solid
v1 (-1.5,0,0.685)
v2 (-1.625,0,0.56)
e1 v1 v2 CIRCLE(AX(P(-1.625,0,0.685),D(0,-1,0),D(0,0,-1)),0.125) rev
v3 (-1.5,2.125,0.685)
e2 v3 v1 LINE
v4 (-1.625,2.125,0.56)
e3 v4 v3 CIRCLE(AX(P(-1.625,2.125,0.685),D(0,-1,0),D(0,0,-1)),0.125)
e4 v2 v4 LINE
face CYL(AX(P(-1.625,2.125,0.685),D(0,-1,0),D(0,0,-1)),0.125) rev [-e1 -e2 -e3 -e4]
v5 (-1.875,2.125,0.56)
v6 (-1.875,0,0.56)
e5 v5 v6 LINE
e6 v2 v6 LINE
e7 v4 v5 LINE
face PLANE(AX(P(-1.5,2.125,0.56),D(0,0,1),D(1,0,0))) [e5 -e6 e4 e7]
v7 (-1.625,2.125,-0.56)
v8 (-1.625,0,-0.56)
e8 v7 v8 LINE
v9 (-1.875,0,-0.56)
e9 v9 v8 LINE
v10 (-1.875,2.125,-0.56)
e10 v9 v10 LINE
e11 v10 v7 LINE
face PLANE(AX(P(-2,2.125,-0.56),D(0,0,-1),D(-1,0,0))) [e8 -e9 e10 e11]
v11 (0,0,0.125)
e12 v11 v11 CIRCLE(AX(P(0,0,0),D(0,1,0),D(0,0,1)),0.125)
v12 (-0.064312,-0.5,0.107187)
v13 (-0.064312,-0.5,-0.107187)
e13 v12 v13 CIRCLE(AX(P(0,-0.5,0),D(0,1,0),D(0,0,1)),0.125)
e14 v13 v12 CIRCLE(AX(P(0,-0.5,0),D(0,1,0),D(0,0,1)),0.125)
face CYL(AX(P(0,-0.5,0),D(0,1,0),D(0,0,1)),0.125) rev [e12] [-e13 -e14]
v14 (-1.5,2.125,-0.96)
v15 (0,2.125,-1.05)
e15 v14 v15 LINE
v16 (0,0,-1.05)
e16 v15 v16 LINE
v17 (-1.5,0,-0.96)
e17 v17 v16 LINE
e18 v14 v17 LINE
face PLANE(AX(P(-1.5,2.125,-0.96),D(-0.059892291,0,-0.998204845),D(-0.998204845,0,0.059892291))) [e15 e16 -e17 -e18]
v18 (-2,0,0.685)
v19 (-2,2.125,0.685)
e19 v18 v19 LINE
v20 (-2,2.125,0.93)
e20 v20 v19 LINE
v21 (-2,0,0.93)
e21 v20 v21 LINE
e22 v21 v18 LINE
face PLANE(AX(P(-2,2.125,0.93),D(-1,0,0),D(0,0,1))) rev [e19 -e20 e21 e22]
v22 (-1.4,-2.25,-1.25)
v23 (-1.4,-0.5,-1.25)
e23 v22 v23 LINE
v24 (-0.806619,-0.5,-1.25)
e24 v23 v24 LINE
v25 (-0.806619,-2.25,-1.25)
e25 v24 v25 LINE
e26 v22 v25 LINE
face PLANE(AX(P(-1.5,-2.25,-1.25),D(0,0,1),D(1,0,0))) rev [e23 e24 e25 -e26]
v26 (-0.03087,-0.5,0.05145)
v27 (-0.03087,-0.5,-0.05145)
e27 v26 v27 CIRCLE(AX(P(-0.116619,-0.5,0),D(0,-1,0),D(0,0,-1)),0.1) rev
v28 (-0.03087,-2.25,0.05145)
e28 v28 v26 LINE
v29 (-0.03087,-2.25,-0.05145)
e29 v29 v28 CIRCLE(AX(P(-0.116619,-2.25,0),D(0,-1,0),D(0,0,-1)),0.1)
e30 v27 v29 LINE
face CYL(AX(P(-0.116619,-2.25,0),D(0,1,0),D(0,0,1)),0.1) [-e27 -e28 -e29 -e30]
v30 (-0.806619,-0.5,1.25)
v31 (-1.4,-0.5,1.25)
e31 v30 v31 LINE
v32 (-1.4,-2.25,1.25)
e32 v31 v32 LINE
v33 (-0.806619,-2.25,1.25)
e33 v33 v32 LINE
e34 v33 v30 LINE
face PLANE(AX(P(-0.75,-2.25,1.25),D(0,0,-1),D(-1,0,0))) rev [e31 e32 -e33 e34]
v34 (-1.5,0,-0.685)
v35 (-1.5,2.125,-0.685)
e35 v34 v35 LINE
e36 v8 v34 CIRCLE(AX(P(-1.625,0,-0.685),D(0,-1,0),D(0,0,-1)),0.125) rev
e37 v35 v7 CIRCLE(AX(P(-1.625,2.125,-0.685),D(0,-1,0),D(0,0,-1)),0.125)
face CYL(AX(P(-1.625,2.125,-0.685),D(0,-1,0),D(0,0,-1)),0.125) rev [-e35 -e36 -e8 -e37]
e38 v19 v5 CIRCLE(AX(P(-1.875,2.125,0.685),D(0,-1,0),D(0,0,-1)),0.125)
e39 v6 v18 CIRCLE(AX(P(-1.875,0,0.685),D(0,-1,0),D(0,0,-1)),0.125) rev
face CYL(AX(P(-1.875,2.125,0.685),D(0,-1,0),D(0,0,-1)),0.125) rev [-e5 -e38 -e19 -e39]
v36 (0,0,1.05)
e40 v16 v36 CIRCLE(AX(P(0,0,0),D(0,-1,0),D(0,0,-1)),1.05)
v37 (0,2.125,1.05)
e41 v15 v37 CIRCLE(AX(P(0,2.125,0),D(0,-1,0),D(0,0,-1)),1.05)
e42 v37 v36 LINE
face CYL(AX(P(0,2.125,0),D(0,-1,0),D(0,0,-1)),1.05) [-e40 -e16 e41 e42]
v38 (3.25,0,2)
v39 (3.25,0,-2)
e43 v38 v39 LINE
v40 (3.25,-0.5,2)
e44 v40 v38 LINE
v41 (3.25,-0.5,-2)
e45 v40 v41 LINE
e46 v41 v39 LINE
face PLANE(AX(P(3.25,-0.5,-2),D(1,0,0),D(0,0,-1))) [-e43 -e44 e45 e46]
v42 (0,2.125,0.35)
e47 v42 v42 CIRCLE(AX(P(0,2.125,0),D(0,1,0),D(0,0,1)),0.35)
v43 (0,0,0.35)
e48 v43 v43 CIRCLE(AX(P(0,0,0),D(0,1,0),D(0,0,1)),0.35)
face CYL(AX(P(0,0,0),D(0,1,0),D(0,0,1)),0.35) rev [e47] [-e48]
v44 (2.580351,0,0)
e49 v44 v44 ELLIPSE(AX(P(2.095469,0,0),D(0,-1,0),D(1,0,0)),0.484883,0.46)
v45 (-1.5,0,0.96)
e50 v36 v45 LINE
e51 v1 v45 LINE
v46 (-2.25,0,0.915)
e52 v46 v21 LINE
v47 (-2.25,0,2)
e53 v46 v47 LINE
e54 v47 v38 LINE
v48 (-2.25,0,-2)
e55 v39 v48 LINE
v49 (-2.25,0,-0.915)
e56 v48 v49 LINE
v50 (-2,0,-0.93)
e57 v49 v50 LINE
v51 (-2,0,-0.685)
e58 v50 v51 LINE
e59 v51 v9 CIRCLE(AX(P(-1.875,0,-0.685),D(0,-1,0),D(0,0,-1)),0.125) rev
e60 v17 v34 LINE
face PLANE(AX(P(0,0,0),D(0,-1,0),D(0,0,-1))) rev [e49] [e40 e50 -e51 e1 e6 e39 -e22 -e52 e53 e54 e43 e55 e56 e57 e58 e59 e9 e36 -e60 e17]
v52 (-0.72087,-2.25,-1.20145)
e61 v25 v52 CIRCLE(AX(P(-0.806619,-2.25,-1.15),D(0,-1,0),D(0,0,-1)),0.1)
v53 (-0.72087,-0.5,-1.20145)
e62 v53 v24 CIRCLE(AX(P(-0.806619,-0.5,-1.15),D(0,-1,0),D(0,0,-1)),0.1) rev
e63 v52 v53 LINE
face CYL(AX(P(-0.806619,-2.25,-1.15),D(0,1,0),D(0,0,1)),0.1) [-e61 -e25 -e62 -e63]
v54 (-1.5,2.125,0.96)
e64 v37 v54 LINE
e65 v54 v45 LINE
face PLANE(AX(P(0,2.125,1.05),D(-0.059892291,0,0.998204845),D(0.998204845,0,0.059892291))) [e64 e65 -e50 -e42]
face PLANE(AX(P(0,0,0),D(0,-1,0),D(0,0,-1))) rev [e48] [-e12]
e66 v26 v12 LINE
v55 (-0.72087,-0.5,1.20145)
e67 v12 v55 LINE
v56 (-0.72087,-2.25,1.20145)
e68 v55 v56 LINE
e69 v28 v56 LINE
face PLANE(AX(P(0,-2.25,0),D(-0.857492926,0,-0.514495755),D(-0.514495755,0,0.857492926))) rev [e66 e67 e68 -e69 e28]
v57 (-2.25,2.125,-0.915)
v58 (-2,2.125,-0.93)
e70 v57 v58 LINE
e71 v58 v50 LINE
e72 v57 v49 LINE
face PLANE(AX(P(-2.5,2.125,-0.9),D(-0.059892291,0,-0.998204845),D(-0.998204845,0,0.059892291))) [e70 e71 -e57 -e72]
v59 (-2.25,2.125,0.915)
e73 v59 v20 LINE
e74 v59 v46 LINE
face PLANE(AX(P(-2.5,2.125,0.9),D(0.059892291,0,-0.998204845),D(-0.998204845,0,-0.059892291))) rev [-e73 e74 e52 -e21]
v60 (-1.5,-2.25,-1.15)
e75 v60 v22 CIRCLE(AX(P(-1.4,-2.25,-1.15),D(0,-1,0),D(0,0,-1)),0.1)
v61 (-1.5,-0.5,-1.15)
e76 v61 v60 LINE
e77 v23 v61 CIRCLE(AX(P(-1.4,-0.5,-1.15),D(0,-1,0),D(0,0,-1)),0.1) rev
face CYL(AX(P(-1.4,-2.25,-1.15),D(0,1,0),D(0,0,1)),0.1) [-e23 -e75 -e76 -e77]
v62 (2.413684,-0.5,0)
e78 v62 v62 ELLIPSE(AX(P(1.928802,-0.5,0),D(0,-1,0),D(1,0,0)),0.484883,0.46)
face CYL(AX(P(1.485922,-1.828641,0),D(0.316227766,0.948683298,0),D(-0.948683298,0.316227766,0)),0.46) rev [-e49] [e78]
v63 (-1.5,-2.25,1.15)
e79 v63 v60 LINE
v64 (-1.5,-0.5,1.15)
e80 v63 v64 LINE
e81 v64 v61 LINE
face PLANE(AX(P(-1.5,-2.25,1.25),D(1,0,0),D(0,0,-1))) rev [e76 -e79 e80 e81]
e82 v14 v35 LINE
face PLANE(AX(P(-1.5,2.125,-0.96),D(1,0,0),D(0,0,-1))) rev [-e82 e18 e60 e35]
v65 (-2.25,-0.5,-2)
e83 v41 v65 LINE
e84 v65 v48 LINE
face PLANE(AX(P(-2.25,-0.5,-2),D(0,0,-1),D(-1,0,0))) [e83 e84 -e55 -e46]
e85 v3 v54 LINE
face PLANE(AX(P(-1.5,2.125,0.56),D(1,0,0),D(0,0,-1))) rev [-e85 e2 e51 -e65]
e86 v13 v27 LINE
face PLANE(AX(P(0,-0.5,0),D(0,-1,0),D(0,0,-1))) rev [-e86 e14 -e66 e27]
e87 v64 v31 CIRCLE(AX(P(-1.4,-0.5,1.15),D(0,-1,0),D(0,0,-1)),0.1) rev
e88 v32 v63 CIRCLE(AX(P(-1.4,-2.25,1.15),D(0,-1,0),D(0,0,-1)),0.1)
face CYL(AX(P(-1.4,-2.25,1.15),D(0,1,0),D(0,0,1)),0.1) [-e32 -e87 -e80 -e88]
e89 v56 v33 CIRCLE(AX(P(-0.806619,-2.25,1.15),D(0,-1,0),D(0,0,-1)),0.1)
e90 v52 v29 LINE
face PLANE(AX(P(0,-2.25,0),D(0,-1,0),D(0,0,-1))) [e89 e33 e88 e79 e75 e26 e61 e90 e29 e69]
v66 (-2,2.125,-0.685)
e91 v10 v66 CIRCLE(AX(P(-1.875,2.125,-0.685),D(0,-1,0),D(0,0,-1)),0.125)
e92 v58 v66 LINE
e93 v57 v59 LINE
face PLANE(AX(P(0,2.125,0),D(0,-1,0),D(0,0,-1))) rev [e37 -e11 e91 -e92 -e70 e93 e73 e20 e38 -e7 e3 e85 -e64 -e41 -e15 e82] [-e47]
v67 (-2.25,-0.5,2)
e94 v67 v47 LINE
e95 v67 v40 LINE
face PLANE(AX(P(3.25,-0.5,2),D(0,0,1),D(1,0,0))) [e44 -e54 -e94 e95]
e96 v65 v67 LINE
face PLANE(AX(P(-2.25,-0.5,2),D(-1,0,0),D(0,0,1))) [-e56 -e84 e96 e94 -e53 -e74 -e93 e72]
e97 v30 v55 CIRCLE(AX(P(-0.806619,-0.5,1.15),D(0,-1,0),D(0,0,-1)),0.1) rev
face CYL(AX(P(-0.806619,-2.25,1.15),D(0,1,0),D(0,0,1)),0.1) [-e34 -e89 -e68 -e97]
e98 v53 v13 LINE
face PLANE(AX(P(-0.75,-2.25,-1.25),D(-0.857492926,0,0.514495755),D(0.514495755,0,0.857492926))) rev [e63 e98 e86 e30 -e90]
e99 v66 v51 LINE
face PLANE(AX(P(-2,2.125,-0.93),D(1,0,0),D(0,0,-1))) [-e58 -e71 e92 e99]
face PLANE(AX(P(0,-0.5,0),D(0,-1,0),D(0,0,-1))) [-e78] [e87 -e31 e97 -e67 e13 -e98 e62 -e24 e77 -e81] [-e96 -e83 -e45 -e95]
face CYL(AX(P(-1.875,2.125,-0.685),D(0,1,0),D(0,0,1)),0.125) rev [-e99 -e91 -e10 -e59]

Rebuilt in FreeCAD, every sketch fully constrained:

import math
import FreeCAD as App
import Part
import Sketcher


def edges_at(feature, points):
    """Names of the edges that pass closest to the given points."""
    edges = feature.Shape.Edges
    near = lambda p: min(range(len(edges)), key=lambda i: edges[i].distToShape(Part.Vertex(*p))[0])
    return sorted({f"Edge{near(p) + 1}" for p in points})


def add_polygon(sketch, points):
    """Adds a closed chain of lines whose ends are joined by coincident constraints."""
    first, n = sketch.GeometryCount, len(points)
    for a, b in zip(points, points[1:] + points[:1]):
        sketch.addGeometry(Part.LineSegment(App.Vector(*a, 0), App.Vector(*b, 0)), False)
    for i in range(n):
        sketch.addConstraint(Sketcher.Constraint("Coincident", first + i, 2, first + (i + 1) % n, 1))

doc = App.newDocument("Part")
body = doc.addObject("PartDesign::Body", "Body")

# Sketch on XZ plane
sketch1 = body.newObject("Sketcher::SketchObject", "Sketch")
sketch1.AttachmentSupport = (doc.getObject("XZ_Plane"), [""])
sketch1.MapMode = "FlatFace"
sketch1.addGeometry([
    Part.LineSegment(App.Vector(-2, -0.93, 0), App.Vector(-2.5, -0.9, 0)),  # 0
    Part.LineSegment(App.Vector(-2.5, -0.9, 0), App.Vector(-2.5, 0.9, 0)),  # 1
    Part.LineSegment(App.Vector(-2.5, 0.9, 0), App.Vector(-2, 0.93, 0)),  # 2
    Part.LineSegment(App.Vector(-2, 0.93, 0), App.Vector(-2, 0.56, 0)),  # 3
    Part.LineSegment(App.Vector(-2, 0.56, 0), App.Vector(-1.5, 0.56, 0)),  # 4
    Part.LineSegment(App.Vector(-1.5, 0.56, 0), App.Vector(-1.5, 0.96, 0)),  # 5
    Part.LineSegment(App.Vector(-1.5, 0.96, 0), App.Vector(0, 1.05, 0)),  # 6
    Part.ArcOfCircle(Part.Circle(App.Vector(0, 0, 0), App.Vector(0, 0, 1), 1.05), math.radians(-90), math.radians(90)),  # 7
    Part.LineSegment(App.Vector(0, -1.05, 0), App.Vector(-1.5, -0.96, 0)),  # 8
    Part.LineSegment(App.Vector(-1.5, -0.96, 0), App.Vector(-1.5, -0.56, 0)),  # 9
    Part.LineSegment(App.Vector(-1.5, -0.56, 0), App.Vector(-2, -0.56, 0)),  # 10
    Part.LineSegment(App.Vector(-2, -0.56, 0), App.Vector(-2, -0.93, 0)),  # 11
], False)
sketch1.addConstraint([
    Sketcher.Constraint("Coincident", 0, 2, 1, 1),
    Sketcher.Constraint("Coincident", 1, 2, 2, 1),
    Sketcher.Constraint("Coincident", 2, 2, 3, 1),
    Sketcher.Constraint("Coincident", 3, 2, 4, 1),
    Sketcher.Constraint("Coincident", 4, 2, 5, 1),
    Sketcher.Constraint("Coincident", 5, 2, 6, 1),
    Sketcher.Constraint("Coincident", 6, 2, 7, 2),
    Sketcher.Constraint("Coincident", 7, 1, 8, 1),
    Sketcher.Constraint("Coincident", 8, 2, 9, 1),
    Sketcher.Constraint("Coincident", 9, 2, 10, 1),
    Sketcher.Constraint("Coincident", 10, 2, 11, 1),
    Sketcher.Constraint("Coincident", 11, 2, 0, 1),
    Sketcher.Constraint("Vertical", 1),
    Sketcher.Constraint("Vertical", 3),
    Sketcher.Constraint("Horizontal", 4),
    Sketcher.Constraint("Vertical", 5),
    Sketcher.Constraint("Vertical", 9),
    Sketcher.Constraint("Horizontal", 10),
    Sketcher.Constraint("Vertical", 11),
    Sketcher.Constraint("Coincident", 7, 3, -1, 1),
    Sketcher.Constraint("Symmetric", 5, 2, 8, 2, -1),
    Sketcher.Constraint("Symmetric", 3, 2, 10, 2, -1),
    Sketcher.Constraint("PointOnObject", 6, 2, -2),
    Sketcher.Constraint("PointOnObject", 7, 1, -2),
    Sketcher.Constraint("Parallel", 2, 6),
    Sketcher.Constraint("Parallel", 0, 8),
    Sketcher.Constraint("Equal", 3, 11),
    Sketcher.Constraint("Radius", 7, 1.05),
    Sketcher.Constraint("DistanceX", 4, 1, 4, 2, 0.5),
    Sketcher.Constraint("DistanceY", 1, 1, 1, 2, 1.8),
    Sketcher.Constraint("DistanceY", 5, 1, 5, 2, 0.4),
    Sketcher.Constraint("DistanceX", 2, 2, -1, 1, 2.0),
    Sketcher.Constraint("DistanceX", 1, 2, 4, 2, 1.0),
    Sketcher.Constraint("DistanceY", 3, 2, 3, 1, 0.37),
])
pad1 = body.newObject("PartDesign::Pad", "Pad")
pad1.Profile = sketch1
pad1.Length = 2.125
pad1.Reversed = True

# Sketch on XZ plane
sketch2 = body.newObject("Sketcher::SketchObject", "Sketch001")
sketch2.AttachmentSupport = (doc.getObject("XZ_Plane"), [""])
sketch2.MapMode = "FlatFace"
sketch2.AttachmentOffset = App.Placement(App.Vector(0, 0, -2.125), App.Rotation())
sketch2.addGeometry(Part.Circle(App.Vector(0, 0, 0), App.Vector(0, 0, 1), 0.35), False)
sketch2.addConstraint([
    Sketcher.Constraint("Coincident", 0, 3, -1, 1),
    Sketcher.Constraint("Diameter", 0, 0.7),
])
pocket1 = body.newObject("PartDesign::Pocket", "Pocket")
pocket1.Profile = sketch2
pocket1.Type = "ThroughAll"
pocket1.Reversed = True
doc.recompute()

fillet = body.newObject("PartDesign::Fillet", "Fillet")
fillet.Base = (pocket1, edges_at(pocket1, [
    (-2, 1.062, -0.56),
    (-1.5, 1.062, -0.56),
    (-1.5, 1.062, 0.56),
    (-2, 1.062, 0.56),
]))
fillet.Radius = 0.125

# Sketch on XZ plane
sketch3 = body.newObject("Sketcher::SketchObject", "Sketch002")
sketch3.AttachmentSupport = (doc.getObject("XZ_Plane"), [""])
sketch3.MapMode = "FlatFace"
add_polygon(sketch3, [(-2.25, 2), (3.25, 2), (3.25, -2), (-2.25, -2)])  # lines 0-3
sketch3.addGeometry(Part.Circle(App.Vector(0, 0, 0), App.Vector(0, 0, 1), 0.12), False)  # 4
sketch3.addConstraint([
    Sketcher.Constraint("Horizontal", 0),
    Sketcher.Constraint("Vertical", 1),
    Sketcher.Constraint("Horizontal", 2),
    Sketcher.Constraint("Vertical", 3),
    Sketcher.Constraint("Coincident", 4, 3, -1, 1),
    Sketcher.Constraint("Diameter", 4, 0.25),
    Sketcher.Constraint("DistanceY", 1, 2, 1, 1, 4.0),
    Sketcher.Constraint("DistanceX", 0, 1, 0, 2, 5.5),
    Sketcher.Constraint("DistanceY", -1, 1, 0, 2, 2.0),
    Sketcher.Constraint("DistanceX", -1, 1, 0, 2, 3.25),
])
pad2 = body.newObject("PartDesign::Pad", "Pad001")
pad2.Profile = sketch3
pad2.Length = 0.5

# Sketch on an angled plane
sketch4 = body.newObject("Sketcher::SketchObject", "Sketch003")
sketch4.Placement = App.Placement(App.Vector(0.7, 2.1, 0), App.Rotation(App.Vector(0.948683298, -0.316227766, 0), App.Vector(0, 0, -1), App.Vector(0.316227766, 0.948683298, 0), "ZXY"))
sketch4.addGeometry(Part.Circle(App.Vector(1.99, 0, 0), App.Vector(0, 0, 1), 0.46), False)
sketch4.addConstraint([
    Sketcher.Constraint("PointOnObject", 0, 3, -1),
    Sketcher.Constraint("Diameter", 0, 0.92),
    Sketcher.Constraint("DistanceX", -1, 1, 0, 3, 1.987936),
])
pocket2 = body.newObject("PartDesign::Pocket", "Pocket001")
pocket2.Profile = sketch4
pocket2.Type = "ThroughAll"

# Sketch on XZ plane
sketch5 = body.newObject("Sketcher::SketchObject", "Sketch004")
sketch5.AttachmentSupport = (doc.getObject("XZ_Plane"), [""])
sketch5.MapMode = "FlatFace"
add_polygon(sketch5, [(-3.7, 2), (-3.7, -2), (-2.3, -2), (-2.3, 2)])  # lines 0-3
sketch5.addConstraint([
    Sketcher.Constraint("Vertical", 0),
    Sketcher.Constraint("Horizontal", 1),
    Sketcher.Constraint("Vertical", 2),
    Sketcher.Constraint("Horizontal", 3),
    Sketcher.Constraint("DistanceY", 0, 2, 0, 1, 4.0),
    Sketcher.Constraint("DistanceY", 0, 2, -1, 1, 2.0),
    Sketcher.Constraint("DistanceX", 1, 2, -1, 1, 2.25),
    Sketcher.Constraint("DistanceX", 1, 1, 1, 2, 1.465032),
])
pocket3 = body.newObject("PartDesign::Pocket", "Pocket002")
pocket3.Profile = sketch5
pocket3.Type = "ThroughAll"
pocket3.Midplane = True

# Sketch on XZ plane
sketch6 = body.newObject("Sketcher::SketchObject", "Sketch005")
sketch6.AttachmentSupport = (doc.getObject("XZ_Plane"), [""])
sketch6.MapMode = "FlatFace"
sketch6.AttachmentOffset = App.Placement(App.Vector(0, 0, 0.5), App.Rotation())
add_polygon(sketch6, [(-1.5, 1.2), (-1.5, -1.2), (-0.8, -1.2), (0, 0), (-0.8, 1.2)])  # lines 0-4
sketch6.addConstraint([
    Sketcher.Constraint("Vertical", 0),
    Sketcher.Constraint("Horizontal", 1),
    Sketcher.Constraint("Horizontal", 4),
    Sketcher.Constraint("Coincident", 2, 2, -1, 1),
    Sketcher.Constraint("Symmetric", 1, 2, 3, 2, -1),
    Sketcher.Constraint("DistanceY", 0, 2, 0, 1, 2.5),
    Sketcher.Constraint("DistanceX", 1, 1, 1, 2, 0.75),
    Sketcher.Constraint("DistanceX", 0, 2, -1, 1, 1.5),
])
pad3 = body.newObject("PartDesign::Pad", "Pad002")
pad3.Profile = sketch6
pad3.Length = 1.75
doc.recompute()

fillet2 = body.newObject("PartDesign::Fillet", "Fillet001")
fillet2.Base = (pad3, edges_at(pad3, [
    (-0.75, -1.375, 1.25),
    (-1.5, -1.375, 1.25),
    (-1.5, -1.375, -1.25),
    (-0.75, -1.375, -1.25),
    (0, -1.375, 0),
]))
fillet2.Radius = 0.1

doc.recompute()
